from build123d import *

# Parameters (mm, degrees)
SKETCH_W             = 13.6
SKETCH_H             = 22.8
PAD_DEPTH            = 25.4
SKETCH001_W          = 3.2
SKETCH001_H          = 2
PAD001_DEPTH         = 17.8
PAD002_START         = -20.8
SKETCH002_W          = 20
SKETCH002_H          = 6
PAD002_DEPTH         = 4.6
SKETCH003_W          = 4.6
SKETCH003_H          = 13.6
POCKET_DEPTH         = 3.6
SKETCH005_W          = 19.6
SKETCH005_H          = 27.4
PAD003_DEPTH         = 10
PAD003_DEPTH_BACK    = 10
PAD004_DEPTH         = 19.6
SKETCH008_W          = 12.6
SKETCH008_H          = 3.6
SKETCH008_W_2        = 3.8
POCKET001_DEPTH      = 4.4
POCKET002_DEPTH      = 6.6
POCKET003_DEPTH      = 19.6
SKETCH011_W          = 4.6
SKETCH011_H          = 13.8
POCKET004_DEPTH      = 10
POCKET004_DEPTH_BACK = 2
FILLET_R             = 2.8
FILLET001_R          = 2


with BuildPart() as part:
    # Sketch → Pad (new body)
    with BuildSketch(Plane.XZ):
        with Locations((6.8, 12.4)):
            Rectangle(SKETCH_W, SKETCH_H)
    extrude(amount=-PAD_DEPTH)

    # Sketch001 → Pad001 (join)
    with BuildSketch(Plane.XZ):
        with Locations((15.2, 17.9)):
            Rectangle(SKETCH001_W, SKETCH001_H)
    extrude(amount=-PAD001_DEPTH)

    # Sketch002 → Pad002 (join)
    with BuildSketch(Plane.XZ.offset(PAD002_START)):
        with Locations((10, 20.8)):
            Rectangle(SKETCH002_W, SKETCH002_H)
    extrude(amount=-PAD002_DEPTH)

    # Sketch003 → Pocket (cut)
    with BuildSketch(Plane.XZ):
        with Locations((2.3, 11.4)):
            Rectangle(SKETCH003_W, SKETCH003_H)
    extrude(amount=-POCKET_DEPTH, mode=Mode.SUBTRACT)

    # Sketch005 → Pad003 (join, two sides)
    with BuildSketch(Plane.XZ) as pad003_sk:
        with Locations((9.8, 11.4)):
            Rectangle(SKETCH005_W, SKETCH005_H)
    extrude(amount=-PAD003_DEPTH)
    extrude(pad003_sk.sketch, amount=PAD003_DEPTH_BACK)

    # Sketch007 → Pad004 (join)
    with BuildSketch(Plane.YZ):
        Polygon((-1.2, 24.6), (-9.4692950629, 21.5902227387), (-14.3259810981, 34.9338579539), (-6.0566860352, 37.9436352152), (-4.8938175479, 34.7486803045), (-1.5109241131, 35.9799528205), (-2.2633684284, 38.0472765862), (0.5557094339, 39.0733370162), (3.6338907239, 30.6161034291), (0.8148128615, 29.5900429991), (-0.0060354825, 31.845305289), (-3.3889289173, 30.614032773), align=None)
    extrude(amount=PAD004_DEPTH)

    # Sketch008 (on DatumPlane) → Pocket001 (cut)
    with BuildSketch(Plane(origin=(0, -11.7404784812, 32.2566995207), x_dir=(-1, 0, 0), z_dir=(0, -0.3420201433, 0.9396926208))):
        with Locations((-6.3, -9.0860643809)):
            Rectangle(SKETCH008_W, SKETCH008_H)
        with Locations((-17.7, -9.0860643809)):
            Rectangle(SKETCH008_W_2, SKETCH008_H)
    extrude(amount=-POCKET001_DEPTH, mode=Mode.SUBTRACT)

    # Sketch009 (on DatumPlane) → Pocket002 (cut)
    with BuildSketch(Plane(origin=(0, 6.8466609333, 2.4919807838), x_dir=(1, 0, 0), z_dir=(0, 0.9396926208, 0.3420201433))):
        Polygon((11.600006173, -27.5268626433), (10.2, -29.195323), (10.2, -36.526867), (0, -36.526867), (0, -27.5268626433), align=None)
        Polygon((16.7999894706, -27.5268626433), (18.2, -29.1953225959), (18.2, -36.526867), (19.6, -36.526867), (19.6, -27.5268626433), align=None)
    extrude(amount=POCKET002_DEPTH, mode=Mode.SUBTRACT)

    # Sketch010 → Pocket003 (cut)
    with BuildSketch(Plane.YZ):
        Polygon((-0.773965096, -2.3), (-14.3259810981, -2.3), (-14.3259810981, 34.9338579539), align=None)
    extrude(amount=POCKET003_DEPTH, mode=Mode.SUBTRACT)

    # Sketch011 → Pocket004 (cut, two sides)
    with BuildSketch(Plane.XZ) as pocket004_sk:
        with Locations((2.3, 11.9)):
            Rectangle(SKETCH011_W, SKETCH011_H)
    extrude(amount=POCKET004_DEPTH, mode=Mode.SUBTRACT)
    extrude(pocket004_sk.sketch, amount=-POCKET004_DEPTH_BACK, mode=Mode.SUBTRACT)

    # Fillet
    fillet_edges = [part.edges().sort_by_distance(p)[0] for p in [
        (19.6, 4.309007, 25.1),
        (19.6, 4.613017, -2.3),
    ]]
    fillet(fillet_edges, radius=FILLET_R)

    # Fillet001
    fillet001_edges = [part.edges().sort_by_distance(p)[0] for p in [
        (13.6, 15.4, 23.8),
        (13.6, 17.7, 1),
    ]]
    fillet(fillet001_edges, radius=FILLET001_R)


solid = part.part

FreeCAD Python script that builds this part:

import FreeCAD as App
import Part
import Sketcher

V = App.Vector
Q = App.Units.Quantity


def edges_at(feature, points):
    """Names of the edges that pass closest to the given points."""
    edges = feature.Shape.Edges
    near = lambda p: min(range(len(edges)), key=lambda i: edges[i].distToShape(Part.Vertex(*p))[0])
    return sorted({f"Edge{near(p) + 1}" for p in points})


def add_polygon(sketch, points):
    """Adds a closed chain of lines whose ends are joined by coincident constraints."""
    first, n = sketch.GeometryCount, len(points)
    for a, b in zip(points, points[1:] + points[:1]):
        sketch.addGeometry(Part.LineSegment(App.Vector(*a, 0), App.Vector(*b, 0)), False)
    for i in range(n):
        sketch.addConstraint(Sketcher.Constraint("Coincident", first + i, 2, first + (i + 1) % n, 1))

doc = App.newDocument("Part")
params = doc.addObject("Spreadsheet::Sheet", "Params")
for row, (alias, value) in enumerate([
    ("sketch1_width", "13.6 mm"),
    ("sketch1_height", "22.8 mm"),
    ("pad1_length", "25.4 mm"),
    ("sketch2_height", "2 mm"),
    ("sketch2_width", "3.2 mm"),
    ("pad2_length", "17.8 mm"),
    ("sketch3_width", "20 mm"),
    ("sketch3_height", "6 mm"),
    ("pad3_length", "4.6 mm"),
    ("sketch4_width", "4.6 mm"),
    ("sketch4_height", "13.6 mm"),
    ("pocket1_length", "3.6 mm"),
    ("sketch5_width", "19.6 mm"),
    ("sketch5_height", "27.4 mm"),
    ("pad4_length", "10 mm"),
    ("pad4_length2", "10 mm"),
    ("sketch6_length", "3 mm"),
    ("sketch6_length2", "9 mm"),
    ("sketch6_length3", "8.8 mm"),
    ("sketch6_length4", "6.4 mm"),
    ("sketch6_length5", "3.6 mm"),
    ("pad5_length", "19.6 mm"),
    ("sketch7_width", "12.6 mm"),
    ("sketch7_width2", "3.8 mm"),
    ("sketch7_height", "3.6 mm"),
    ("pocket2_length", "4.4 mm"),
    ("sketch8_width", "10.2 mm"),
    ("sketch8_width2", "1.4 mm"),
    ("pocket3_length", "6.6 mm"),
    ("pocket4_length", "19.6 mm"),
    ("sketch10_width", "4.6 mm"),
    ("sketch10_height", "13.8 mm"),
    ("pocket5_length", "10 mm"),
    ("pocket5_length2", "2 mm"),
    ("fillet_radius", "2.8 mm"),
    ("fillet2_radius", "2 mm"),
], start=1):
    params.set(f"A{row}", alias)
    params.set(f"B{row}", "=" + value)
    params.setAlias(f"B{row}", alias)

body = doc.addObject("PartDesign::Body", "Body")

sketch1 = body.newObject("Sketcher::SketchObject", "Sketch")
sketch1.AttachmentSupport = (doc.getObject("XZ_Plane"), [""])
sketch1.MapMode = "FlatFace"
add_polygon(sketch1, [(0, 24), (0, 1), (14, 1), (14, 24)])
sketch1.addConstraint(Sketcher.Constraint("Vertical", 0))
sketch1.addConstraint(Sketcher.Constraint("Horizontal", 1))
sketch1.addConstraint(Sketcher.Constraint("Vertical", 2))
sketch1.addConstraint(Sketcher.Constraint("Horizontal", 3))
sketch1.addConstraint(Sketcher.Constraint("PointOnObject", 0, 2, -2))
sketch1.addConstraint(Sketcher.Constraint("DistanceX", 1, 1, 1, 2, 13.6))
sketch1.addConstraint(Sketcher.Constraint("DistanceY", 0, 2, 0, 1, 22.8))
sketch1.addConstraint(Sketcher.Constraint("DistanceY", -1, 1, 0, 2, 1.0))
sketch1.setExpression("Constraints[9]", "Params.sketch1_width")
sketch1.setExpression("Constraints[10]", "Params.sketch1_height")
pad1 = body.newObject("PartDesign::Pad", "Pad")
pad1.Profile = sketch1
pad1.setExpression("Length", "Params.pad1_length")
pad1.Reversed = True

sketch2 = body.newObject("Sketcher::SketchObject", "Sketch001")
sketch2.AttachmentSupport = (doc.getObject("XZ_Plane"), [""])
sketch2.MapMode = "FlatFace"
add_polygon(sketch2, [(13.6, 18.9), (13.6, 16.9), (16.8, 16.9), (16.8, 18.9)])
sketch2.addConstraint(Sketcher.Constraint("Vertical", 0))
sketch2.addConstraint(Sketcher.Constraint("Horizontal", 1))
sketch2.addConstraint(Sketcher.Constraint("Vertical", 2))
sketch2.addConstraint(Sketcher.Constraint("Horizontal", 3))
sketch2.addConstraint(Sketcher.Constraint("DistanceY", 0, 2, 0, 1, 2.0))
sketch2.addConstraint(Sketcher.Constraint("DistanceX", 1, 1, 1, 2, 3.2))
sketch2.addConstraint(Sketcher.Constraint("DistanceX", -1, 1, 0, 2, 13.6))
sketch2.addConstraint(Sketcher.Constraint("DistanceY", -1, 1, 0, 2, 16.9))
sketch2.setExpression("Constraints[8]", "Params.sketch2_height")
sketch2.setExpression("Constraints[9]", "Params.sketch2_width")
pad2 = body.newObject("PartDesign::Pad", "Pad001")
pad2.Profile = sketch2
pad2.setExpression("Length", "Params.pad2_length")
pad2.Reversed = True

sketch3 = body.newObject("Sketcher::SketchObject", "Sketch002")
sketch3.AttachmentSupport = (doc.getObject("XZ_Plane"), [""])
sketch3.MapMode = "FlatFace"
sketch3.AttachmentOffset = App.Placement(V(0, 0, -20.8), App.Rotation())
add_polygon(sketch3, [(0, 24), (0, 18), (20, 18), (20, 24)])
sketch3.addConstraint(Sketcher.Constraint("Vertical", 0))
sketch3.addConstraint(Sketcher.Constraint("Horizontal", 1))
sketch3.addConstraint(Sketcher.Constraint("Vertical", 2))
sketch3.addConstraint(Sketcher.Constraint("Horizontal", 3))
sketch3.addConstraint(Sketcher.Constraint("PointOnObject", 0, 2, -2))
sketch3.addConstraint(Sketcher.Constraint("DistanceX", 1, 1, 1, 2, 20.0))
sketch3.addConstraint(Sketcher.Constraint("DistanceY", 0, 2, 0, 1, 6.0))
sketch3.addConstraint(Sketcher.Constraint("DistanceY", -1, 1, 0, 2, 17.8))
sketch3.setExpression("Constraints[9]", "Params.sketch3_width")
sketch3.setExpression("Constraints[10]", "Params.sketch3_height")
pad3 = body.newObject("PartDesign::Pad", "Pad002")
pad3.Profile = sketch3
pad3.setExpression("Length", "Params.pad3_length")
pad3.Reversed = True

sketch4 = body.newObject("Sketcher::SketchObject", "Sketch003")
sketch4.AttachmentSupport = (doc.getObject("XZ_Plane"), [""])
sketch4.MapMode = "FlatFace"
add_polygon(sketch4, [(0, 18.2), (0, 4.6), (4.6, 4.6), (4.6, 18.2)])
sketch4.addConstraint(Sketcher.Constraint("Vertical", 0))
sketch4.addConstraint(Sketcher.Constraint("Horizontal", 1))
sketch4.addConstraint(Sketcher.Constraint("Vertical", 2))
sketch4.addConstraint(Sketcher.Constraint("Horizontal", 3))
sketch4.addConstraint(Sketcher.Constraint("PointOnObject", 0, 2, -2))
sketch4.addConstraint(Sketcher.Constraint("DistanceX", 1, 1, 1, 2, 4.6))
sketch4.addConstraint(Sketcher.Constraint("DistanceY", 0, 2, 0, 1, 13.6))
sketch4.addConstraint(Sketcher.Constraint("DistanceY", -1, 1, 0, 2, 4.6))
sketch4.setExpression("Constraints[9]", "Params.sketch4_width")
sketch4.setExpression("Constraints[10]", "Params.sketch4_height")
pocket1 = body.newObject("PartDesign::Pocket", "Pocket")
pocket1.Profile = sketch4
pocket1.setExpression("Length", "Params.pocket1_length")

sketch5 = body.newObject("Sketcher::SketchObject", "Sketch004")
sketch5.AttachmentSupport = (doc.getObject("XZ_Plane"), [""])
sketch5.MapMode = "FlatFace"
add_polygon(sketch5, [(0, 25), (0, -2), (20, -2), (20, 25)])
sketch5.addConstraint(Sketcher.Constraint("Vertical", 0))
sketch5.addConstraint(Sketcher.Constraint("Horizontal", 1))
sketch5.addConstraint(Sketcher.Constraint("Vertical", 2))
sketch5.addConstraint(Sketcher.Constraint("Horizontal", 3))
sketch5.addConstraint(Sketcher.Constraint("PointOnObject", 0, 2, -2))
sketch5.addConstraint(Sketcher.Constraint("DistanceX", 1, 1, 1, 2, 19.6))
sketch5.addConstraint(Sketcher.Constraint("DistanceY", 0, 2, 0, 1, 27.4))
sketch5.addConstraint(Sketcher.Constraint("DistanceY", 0, 2, -1, 1, 2.3))
sketch5.setExpression("Constraints[9]", "Params.sketch5_width")
sketch5.setExpression("Constraints[10]", "Params.sketch5_height")
pad4 = body.newObject("PartDesign::Pad", "Pad003")
pad4.Profile = sketch5
pad4.Type = "TwoLengths"
pad4.setExpression("Length", "Params.pad4_length")
pad4.setExpression("Length2", "Params.pad4_length2")
pad4.Reversed = True

sketch6 = body.newObject("Sketcher::SketchObject", "Sketch005")
sketch6.AttachmentSupport = (doc.getObject("YZ_Plane"), [""])
sketch6.MapMode = "FlatFace"
add_polygon(sketch6, [(-9.5, 21.6), (-1.2, 24.6), (-3.4, 30.6), (0, 31.8), (0.8, 29.6), (3.6, 30.6), (0.6, 39.1), (-2.3, 38), (-1.5, 36), (-4.9, 34.7), (-6.1, 37.9), (-14.3, 34.9)])
sketch6.addConstraint(Sketcher.Constraint("Perpendicular", 0, 1))
sketch6.addConstraint(Sketcher.Constraint("Perpendicular", 1, 2))
sketch6.addConstraint(Sketcher.Constraint("Perpendicular", 2, 3))
sketch6.addConstraint(Sketcher.Constraint("Perpendicular", 3, 4))
sketch6.addConstraint(Sketcher.Constraint("Perpendicular", 4, 5))
sketch6.addConstraint(Sketcher.Constraint("Perpendicular", 5, 6))
sketch6.addConstraint(Sketcher.Constraint("Perpendicular", 6, 7))
sketch6.addConstraint(Sketcher.Constraint("Perpendicular", 7, 8))
sketch6.addConstraint(Sketcher.Constraint("Perpendicular", 8, 9))
sketch6.addConstraint(Sketcher.Constraint("Perpendicular", 9, 10))
sketch6.addConstraint(Sketcher.Constraint("Perpendicular", 10, 11))
sketch6.addConstraint(Sketcher.Constraint("Equal", 4, 6))
sketch6.addConstraint(Sketcher.Constraint("Equal", 2, 8))
sketch6.addConstraint(Sketcher.Constraint("Angle", 0, Q("20 deg")))
sketch6.addConstraint(Sketcher.Constraint("Distance", 4, 3.0))
sketch6.addConstraint(Sketcher.Constraint("Distance", 5, 9.0))
sketch6.addConstraint(Sketcher.Constraint("Distance", 0, 8.8))
sketch6.addConstraint(Sketcher.Constraint("Distance", 1, 6.4))
sketch6.addConstraint(Sketcher.Constraint("Distance", 2, 3.6))
sketch6.addConstraint(Sketcher.Constraint("Distance", 3, 2.4))
sketch6.addConstraint(Sketcher.Constraint("Distance", 7, 2.2))
sketch6.addConstraint(Sketcher.Constraint("Distance", 9, 3.4))
sketch6.addConstraint(Sketcher.Constraint("DistanceX", 0, 2, -1, 1, 1.2))
sketch6.addConstraint(Sketcher.Constraint("DistanceY", -1, 1, 0, 2, 24.6))
sketch6.setExpression("Constraints[26]", "Params.sketch6_length")
sketch6.setExpression("Constraints[27]", "Params.sketch6_length2")
sketch6.setExpression("Constraints[28]", "Params.sketch6_length3")
sketch6.setExpression("Constraints[29]", "Params.sketch6_length4")
sketch6.setExpression("Constraints[30]", "Params.sketch6_length5")
pad5 = body.newObject("PartDesign::Pad", "Pad004")
pad5.Profile = sketch6
pad5.setExpression("Length", "Params.pad5_length")

sketch7 = body.newObject("Sketcher::SketchObject", "Sketch006")
sketch7.Placement = App.Placement(V(0, -11.740478, 32.2567), App.Rotation(V(-1, 0, 0), V(0, -0.939692621, -0.342020143), V(0, -0.342020143, 0.939692621), "ZXY"))
add_polygon(sketch7, [(-12.6, -7.3), (-12.6, -10.9), (0, -10.9), (0, -7.3)])
add_polygon(sketch7, [(-19.6, -7.3), (-19.6, -10.9), (-15.8, -10.9), (-15.8, -7.3)])
sketch7.addConstraint(Sketcher.Constraint("Vertical", 0))
sketch7.addConstraint(Sketcher.Constraint("Horizontal", 1))
sketch7.addConstraint(Sketcher.Constraint("Vertical", 2))
sketch7.addConstraint(Sketcher.Constraint("Horizontal", 3))
sketch7.addConstraint(Sketcher.Constraint("Vertical", 4))
sketch7.addConstraint(Sketcher.Constraint("Horizontal", 5))
sketch7.addConstraint(Sketcher.Constraint("Vertical", 6))
sketch7.addConstraint(Sketcher.Constraint("Horizontal", 7))
sketch7.addConstraint(Sketcher.Constraint("PointOnObject", 1, 2, -2))
sketch7.addConstraint(Sketcher.Constraint("Horizontal", 1, 2, 4, 2))
sketch7.addConstraint(Sketcher.Constraint("Horizontal", 3, 2, 6, 2))
sketch7.addConstraint(Sketcher.Constraint("DistanceX", 1, 1, 1, 2, 12.6))
sketch7.addConstraint(Sketcher.Constraint("DistanceX", 5, 1, 5, 2, 3.8))
sketch7.addConstraint(Sketcher.Constraint("DistanceY", 0, 2, 0, 1, 3.6))
sketch7.addConstraint(Sketcher.Constraint("DistanceX", 4, 2, 0, 2, 7.0))
sketch7.addConstraint(Sketcher.Constraint("DistanceY", 0, 2, -1, 1, 10.886064))
sketch7.setExpression("Constraints[19]", "Params.sketch7_width")
sketch7.setExpression("Constraints[20]", "Params.sketch7_width2")
sketch7.setExpression("Constraints[21]", "Params.sketch7_height")
pocket2 = body.newObject("PartDesign::Pocket", "Pocket001")
pocket2.Profile = sketch7
pocket2.setExpression("Length", "Params.pocket2_length")

sketch8 = body.newObject("Sketcher::SketchObject", "Sketch007")
sketch8.Placement = App.Placement(V(0, 6.846661, 2.491981), App.Rotation(V(1, 0, 0), V(0, 0.342020143, -0.939692621), V(0, 0.939692621, 0.342020143), "ZXY"))
add_polygon(sketch8, [(10.2, -29.2), (11.6, -27.5), (0, -27.5), (0, -36.5), (10.2, -36.5)])
add_polygon(sketch8, [(16.8, -27.5), (18.2, -29.2), (18.2, -36.5), (19.6, -36.5), (19.6, -27.5)])
sketch8.addConstraint(Sketcher.Constraint("Horizontal", 1))
sketch8.addConstraint(Sketcher.Constraint("Vertical", 2))
sketch8.addConstraint(Sketcher.Constraint("Horizontal", 3))
sketch8.addConstraint(Sketcher.Constraint("Vertical", 4))
sketch8.addConstraint(Sketcher.Constraint("Vertical", 6))
sketch8.addConstraint(Sketcher.Constraint("Horizontal", 7))
sketch8.addConstraint(Sketcher.Constraint("Vertical", 8))
sketch8.addConstraint(Sketcher.Constraint("Horizontal", 9))
sketch8.addConstraint(Sketcher.Constraint("PointOnObject", 1, 2, -2))
sketch8.addConstraint(Sketcher.Constraint("Horizontal", 4, 2, 5, 2))
sketch8.addConstraint(Sketcher.Constraint("Horizontal", 3, 2, 6, 2))
sketch8.addConstraint(Sketcher.Constraint("Horizontal", 1, 2, 8, 2))
sketch8.addConstraint(Sketcher.Constraint("DistanceX", 3, 1, 3, 2, 10.2))
sketch8.addConstraint(Sketcher.Constraint("DistanceX", 7, 1, 7, 2, 1.4))
sketch8.addConstraint(Sketcher.Constraint("DistanceX", 4, 2, 5, 2, 8.0))
sketch8.addConstraint(Sketcher.Constraint("DistanceX", 9, 2, 9, 1, 2.800011))
sketch8.addConstraint(Sketcher.Constraint("Distance", 0, 2.178021))
sketch8.addConstraint(Sketcher.Constraint("DistanceX", 1, 2, 1, 1, 11.600006))
sketch8.addConstraint(Sketcher.Constraint("DistanceY", 2, 2, 2, 1, 9.000004))
sketch8.addConstraint(Sketcher.Constraint("DistanceY", 0, 2, -1, 1, 27.526863))
sketch8.setExpression("Constraints[22]", "Params.sketch8_width")
sketch8.setExpression("Constraints[23]", "Params.sketch8_width2")
pocket3 = body.newObject("PartDesign::Pocket", "Pocket002")
pocket3.Profile = sketch8
pocket3.setExpression("Length", "Params.pocket3_length")
pocket3.Reversed = True

sketch9 = body.newObject("Sketcher::SketchObject", "Sketch008")
sketch9.AttachmentSupport = (doc.getObject("YZ_Plane"), [""])
sketch9.MapMode = "FlatFace"
add_polygon(sketch9, [(-14, -2), (-1, -2), (-14, 35)])
sketch9.addConstraint(Sketcher.Constraint("Horizontal", 0))
sketch9.addConstraint(Sketcher.Constraint("Vertical", 2))
sketch9.addConstraint(Sketcher.Constraint("Angle", 1, Q("110 deg")))
sketch9.addConstraint(Sketcher.Constraint("DistanceY", 0, 2, -1, 1, 2.3))
sketch9.addConstraint(Sketcher.Constraint("DistanceX", 0, 1, 0, 2, 13.552016))
sketch9.addConstraint(Sketcher.Constraint("DistanceX", 1, 2, -1, 1, 14.325981))
pocket4 = body.newObject("PartDesign::Pocket", "Pocket003")
pocket4.Profile = sketch9
pocket4.setExpression("Length", "Params.pocket4_length")
pocket4.Reversed = True

sketch10 = body.newObject("Sketcher::SketchObject", "Sketch009")
sketch10.AttachmentSupport = (doc.getObject("XZ_Plane"), [""])
sketch10.MapMode = "FlatFace"
add_polygon(sketch10, [(0, 18.8), (0, 5), (4.6, 5), (4.6, 18.8)])
sketch10.addConstraint(Sketcher.Constraint("Vertical", 0))
sketch10.addConstraint(Sketcher.Constraint("Horizontal", 1))
sketch10.addConstraint(Sketcher.Constraint("Vertical", 2))
sketch10.addConstraint(Sketcher.Constraint("Horizontal", 3))
sketch10.addConstraint(Sketcher.Constraint("PointOnObject", 0, 2, -2))
sketch10.addConstraint(Sketcher.Constraint("DistanceX", 1, 1, 1, 2, 4.6))
sketch10.addConstraint(Sketcher.Constraint("DistanceY", 0, 2, 0, 1, 13.8))
sketch10.addConstraint(Sketcher.Constraint("DistanceY", -1, 1, 0, 2, 5.0))
sketch10.setExpression("Constraints[9]", "Params.sketch10_width")
sketch10.setExpression("Constraints[10]", "Params.sketch10_height")
pocket5 = body.newObject("PartDesign::Pocket", "Pocket004")
pocket5.Profile = sketch10
pocket5.Type = "TwoLengths"
pocket5.setExpression("Length", "Params.pocket5_length")
pocket5.setExpression("Length2", "Params.pocket5_length2")
pocket5.Reversed = True
doc.recompute()

fillet = body.newObject("PartDesign::Fillet", "Fillet")
fillet.Base = (pocket5, edges_at(pocket5, [(19.6, 4.309, 25.1), (19.6, 4.613, -2.3)]))
fillet.setExpression("Radius", "Params.fillet_radius")
doc.recompute()

fillet2 = body.newObject("PartDesign::Fillet", "Fillet001")
fillet2.Base = (fillet, edges_at(fillet, [(13.6, 15.4, 23.8), (13.6, 17.7, 1)]))
fillet2.setExpression("Radius", "Params.fillet2_radius")

doc.recompute()
